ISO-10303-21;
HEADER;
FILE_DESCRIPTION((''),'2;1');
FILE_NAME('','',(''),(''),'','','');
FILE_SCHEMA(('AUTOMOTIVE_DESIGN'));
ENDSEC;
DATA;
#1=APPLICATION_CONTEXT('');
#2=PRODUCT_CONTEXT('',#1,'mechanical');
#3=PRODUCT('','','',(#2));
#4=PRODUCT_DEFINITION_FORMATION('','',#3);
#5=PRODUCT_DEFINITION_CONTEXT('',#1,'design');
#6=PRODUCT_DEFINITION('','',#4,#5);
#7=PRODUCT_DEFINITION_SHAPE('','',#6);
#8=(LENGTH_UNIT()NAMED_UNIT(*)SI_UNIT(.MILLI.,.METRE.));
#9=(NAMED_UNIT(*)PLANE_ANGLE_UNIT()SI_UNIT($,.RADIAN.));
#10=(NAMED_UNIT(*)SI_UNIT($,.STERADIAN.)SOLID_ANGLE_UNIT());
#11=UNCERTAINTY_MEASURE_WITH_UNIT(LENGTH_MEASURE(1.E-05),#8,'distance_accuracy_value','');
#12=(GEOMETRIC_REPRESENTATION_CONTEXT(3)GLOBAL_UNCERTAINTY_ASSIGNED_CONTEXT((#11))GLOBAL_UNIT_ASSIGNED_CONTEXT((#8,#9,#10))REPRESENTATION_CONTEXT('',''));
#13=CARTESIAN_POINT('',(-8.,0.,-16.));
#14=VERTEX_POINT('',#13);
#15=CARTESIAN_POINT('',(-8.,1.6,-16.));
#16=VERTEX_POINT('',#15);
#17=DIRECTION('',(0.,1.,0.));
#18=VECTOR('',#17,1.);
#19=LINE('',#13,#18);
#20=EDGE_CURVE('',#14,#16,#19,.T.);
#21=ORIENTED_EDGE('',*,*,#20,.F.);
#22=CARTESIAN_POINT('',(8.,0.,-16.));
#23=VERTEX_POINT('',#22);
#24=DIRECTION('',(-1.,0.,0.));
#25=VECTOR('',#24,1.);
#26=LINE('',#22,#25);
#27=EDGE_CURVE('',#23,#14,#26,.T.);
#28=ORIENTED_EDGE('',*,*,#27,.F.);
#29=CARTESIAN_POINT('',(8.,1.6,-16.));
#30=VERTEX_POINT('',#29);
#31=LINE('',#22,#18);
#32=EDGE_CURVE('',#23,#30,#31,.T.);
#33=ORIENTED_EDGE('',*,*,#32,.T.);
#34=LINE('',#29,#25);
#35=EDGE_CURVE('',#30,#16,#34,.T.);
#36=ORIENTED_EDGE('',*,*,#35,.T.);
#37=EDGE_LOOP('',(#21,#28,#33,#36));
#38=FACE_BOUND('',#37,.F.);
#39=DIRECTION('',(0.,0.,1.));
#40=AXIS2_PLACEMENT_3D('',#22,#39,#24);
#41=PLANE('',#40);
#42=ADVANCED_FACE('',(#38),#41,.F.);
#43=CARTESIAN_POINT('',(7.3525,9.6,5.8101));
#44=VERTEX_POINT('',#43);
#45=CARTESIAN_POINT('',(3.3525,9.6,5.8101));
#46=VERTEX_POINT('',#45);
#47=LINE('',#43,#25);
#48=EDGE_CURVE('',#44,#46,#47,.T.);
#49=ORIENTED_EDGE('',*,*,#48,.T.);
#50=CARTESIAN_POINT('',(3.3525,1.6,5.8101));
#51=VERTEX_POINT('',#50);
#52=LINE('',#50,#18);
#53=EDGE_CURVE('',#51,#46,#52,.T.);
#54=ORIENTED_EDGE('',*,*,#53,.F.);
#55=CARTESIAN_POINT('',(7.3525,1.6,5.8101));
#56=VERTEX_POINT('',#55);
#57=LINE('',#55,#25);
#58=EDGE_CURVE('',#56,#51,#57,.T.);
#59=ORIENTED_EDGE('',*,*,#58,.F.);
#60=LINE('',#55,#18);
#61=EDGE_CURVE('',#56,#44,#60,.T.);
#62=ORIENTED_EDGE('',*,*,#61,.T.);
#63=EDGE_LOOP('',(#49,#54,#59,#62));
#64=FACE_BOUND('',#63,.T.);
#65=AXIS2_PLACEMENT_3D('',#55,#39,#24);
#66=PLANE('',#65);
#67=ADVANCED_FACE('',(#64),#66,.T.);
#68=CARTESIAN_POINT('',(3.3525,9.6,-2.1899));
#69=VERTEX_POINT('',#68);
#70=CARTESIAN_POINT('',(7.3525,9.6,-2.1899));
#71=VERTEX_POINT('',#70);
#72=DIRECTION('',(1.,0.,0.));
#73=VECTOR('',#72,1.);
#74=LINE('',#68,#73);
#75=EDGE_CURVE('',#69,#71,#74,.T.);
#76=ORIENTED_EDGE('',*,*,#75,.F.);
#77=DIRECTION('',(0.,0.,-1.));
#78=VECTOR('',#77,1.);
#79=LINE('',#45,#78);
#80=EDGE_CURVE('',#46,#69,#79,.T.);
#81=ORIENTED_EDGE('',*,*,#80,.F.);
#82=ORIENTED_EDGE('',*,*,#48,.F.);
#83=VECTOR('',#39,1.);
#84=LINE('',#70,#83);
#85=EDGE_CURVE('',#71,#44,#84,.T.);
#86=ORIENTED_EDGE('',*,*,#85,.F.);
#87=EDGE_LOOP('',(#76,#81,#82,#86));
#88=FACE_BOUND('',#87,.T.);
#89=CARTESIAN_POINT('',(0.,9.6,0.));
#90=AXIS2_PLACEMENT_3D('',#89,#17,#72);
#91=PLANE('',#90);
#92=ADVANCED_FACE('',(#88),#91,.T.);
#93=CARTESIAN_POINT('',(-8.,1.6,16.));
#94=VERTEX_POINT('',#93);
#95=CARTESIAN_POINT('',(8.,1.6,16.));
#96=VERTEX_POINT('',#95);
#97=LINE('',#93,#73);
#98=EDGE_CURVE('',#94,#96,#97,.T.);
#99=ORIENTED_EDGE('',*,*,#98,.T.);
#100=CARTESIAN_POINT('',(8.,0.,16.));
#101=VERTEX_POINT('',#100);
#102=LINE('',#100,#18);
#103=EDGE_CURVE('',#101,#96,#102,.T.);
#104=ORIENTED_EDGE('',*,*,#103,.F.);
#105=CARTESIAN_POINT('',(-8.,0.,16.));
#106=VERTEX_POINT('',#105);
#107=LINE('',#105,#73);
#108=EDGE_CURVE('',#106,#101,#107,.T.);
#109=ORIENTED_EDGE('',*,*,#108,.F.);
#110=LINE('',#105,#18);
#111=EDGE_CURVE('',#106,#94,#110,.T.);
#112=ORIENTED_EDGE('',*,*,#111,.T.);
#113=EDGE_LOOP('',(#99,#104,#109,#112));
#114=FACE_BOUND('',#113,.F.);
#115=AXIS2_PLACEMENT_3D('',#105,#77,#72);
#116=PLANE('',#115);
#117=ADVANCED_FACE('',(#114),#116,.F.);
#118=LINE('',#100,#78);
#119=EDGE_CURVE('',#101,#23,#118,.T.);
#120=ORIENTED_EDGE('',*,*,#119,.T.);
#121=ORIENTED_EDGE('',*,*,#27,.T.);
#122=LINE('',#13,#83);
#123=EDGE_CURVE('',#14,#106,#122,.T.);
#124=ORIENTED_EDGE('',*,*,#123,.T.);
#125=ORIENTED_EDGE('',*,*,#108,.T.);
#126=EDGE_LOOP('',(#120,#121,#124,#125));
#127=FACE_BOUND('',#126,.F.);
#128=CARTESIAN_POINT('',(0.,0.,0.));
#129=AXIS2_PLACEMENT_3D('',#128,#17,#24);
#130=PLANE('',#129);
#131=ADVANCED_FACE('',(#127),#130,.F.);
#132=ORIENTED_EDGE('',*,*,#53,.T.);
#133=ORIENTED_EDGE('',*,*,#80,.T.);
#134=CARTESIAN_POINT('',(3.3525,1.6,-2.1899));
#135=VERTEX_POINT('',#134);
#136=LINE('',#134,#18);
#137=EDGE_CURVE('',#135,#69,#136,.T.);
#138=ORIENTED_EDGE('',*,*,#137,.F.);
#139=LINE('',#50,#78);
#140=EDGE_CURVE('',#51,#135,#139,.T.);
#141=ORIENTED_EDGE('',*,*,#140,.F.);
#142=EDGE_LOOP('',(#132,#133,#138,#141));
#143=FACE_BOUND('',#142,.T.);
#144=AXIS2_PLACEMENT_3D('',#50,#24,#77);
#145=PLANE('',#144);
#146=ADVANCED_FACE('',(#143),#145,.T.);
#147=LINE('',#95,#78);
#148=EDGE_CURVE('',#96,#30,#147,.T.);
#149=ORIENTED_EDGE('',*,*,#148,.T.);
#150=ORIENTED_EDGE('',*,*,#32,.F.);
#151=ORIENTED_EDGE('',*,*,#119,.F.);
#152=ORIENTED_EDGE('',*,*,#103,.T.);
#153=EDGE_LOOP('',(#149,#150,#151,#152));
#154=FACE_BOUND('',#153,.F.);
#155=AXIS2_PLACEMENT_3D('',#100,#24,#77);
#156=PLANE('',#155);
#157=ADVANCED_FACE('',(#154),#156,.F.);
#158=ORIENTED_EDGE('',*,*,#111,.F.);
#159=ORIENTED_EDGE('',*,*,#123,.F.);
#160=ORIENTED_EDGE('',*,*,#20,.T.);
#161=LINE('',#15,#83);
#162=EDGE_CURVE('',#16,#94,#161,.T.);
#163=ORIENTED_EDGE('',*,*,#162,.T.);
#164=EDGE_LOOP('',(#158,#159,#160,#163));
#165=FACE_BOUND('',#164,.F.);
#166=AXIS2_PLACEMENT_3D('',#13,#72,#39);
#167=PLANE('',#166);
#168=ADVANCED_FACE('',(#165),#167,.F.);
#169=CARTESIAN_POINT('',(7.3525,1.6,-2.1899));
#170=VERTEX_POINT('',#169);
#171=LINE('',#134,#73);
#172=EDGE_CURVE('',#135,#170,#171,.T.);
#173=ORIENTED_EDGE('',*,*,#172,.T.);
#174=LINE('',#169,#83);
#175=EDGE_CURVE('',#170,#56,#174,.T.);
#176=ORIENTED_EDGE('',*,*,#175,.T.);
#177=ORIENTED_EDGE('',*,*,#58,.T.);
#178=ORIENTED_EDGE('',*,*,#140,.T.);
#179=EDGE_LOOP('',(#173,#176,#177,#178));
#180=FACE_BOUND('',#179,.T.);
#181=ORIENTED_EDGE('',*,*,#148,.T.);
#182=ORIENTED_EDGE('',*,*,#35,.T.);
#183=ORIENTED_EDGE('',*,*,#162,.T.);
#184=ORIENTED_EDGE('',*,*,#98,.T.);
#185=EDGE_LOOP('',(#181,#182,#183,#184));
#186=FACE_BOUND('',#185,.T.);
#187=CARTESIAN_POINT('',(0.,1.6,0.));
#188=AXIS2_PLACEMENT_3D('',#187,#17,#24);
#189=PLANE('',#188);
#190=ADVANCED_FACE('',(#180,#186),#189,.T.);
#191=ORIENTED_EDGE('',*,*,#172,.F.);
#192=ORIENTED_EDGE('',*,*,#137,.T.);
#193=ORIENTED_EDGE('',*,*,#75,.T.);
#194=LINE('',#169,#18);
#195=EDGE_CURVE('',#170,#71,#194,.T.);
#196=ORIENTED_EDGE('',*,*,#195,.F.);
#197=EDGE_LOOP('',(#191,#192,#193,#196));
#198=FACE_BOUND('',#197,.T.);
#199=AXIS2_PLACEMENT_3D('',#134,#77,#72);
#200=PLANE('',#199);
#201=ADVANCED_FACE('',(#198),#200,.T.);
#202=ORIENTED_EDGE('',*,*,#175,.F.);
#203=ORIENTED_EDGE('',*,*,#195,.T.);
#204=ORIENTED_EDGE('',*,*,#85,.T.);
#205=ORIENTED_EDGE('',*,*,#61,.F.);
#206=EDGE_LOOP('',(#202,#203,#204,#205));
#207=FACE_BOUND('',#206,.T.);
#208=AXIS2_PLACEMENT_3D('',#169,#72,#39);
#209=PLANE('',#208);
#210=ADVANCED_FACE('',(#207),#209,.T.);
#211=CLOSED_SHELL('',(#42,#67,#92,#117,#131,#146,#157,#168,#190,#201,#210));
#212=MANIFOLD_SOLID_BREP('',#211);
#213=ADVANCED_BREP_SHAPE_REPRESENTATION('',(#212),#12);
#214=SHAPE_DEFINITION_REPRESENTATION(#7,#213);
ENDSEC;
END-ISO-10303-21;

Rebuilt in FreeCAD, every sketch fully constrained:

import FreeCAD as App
import Part
import Sketcher
from FreeCAD import Vector
Q = App.Units.Quantity


def add_polygon(sketch, points):
    """Adds a closed chain of lines whose ends are joined by coincident constraints."""
    first, n = sketch.GeometryCount, len(points)
    for a, b in zip(points, points[1:] + points[:1]):
        sketch.addGeometry(Part.LineSegment(App.Vector(*a, 0), App.Vector(*b, 0)), False)
    for i in range(n):
        sketch.addConstraint(Sketcher.Constraint("Coincident", first + i, 2, first + (i + 1) % n, 1))

doc = App.newDocument("Part")
body = doc.addObject("PartDesign::Body", "Body")

sketch1 = doc.addObject("Sketcher::SketchObject", "Sketch")
body.addObject(sketch1)
sketch1.AttachmentSupport = (doc.XZ_Plane, [""])
sketch1.MapMode = "FlatFace"
add_polygon(sketch1, [(8, 16), (8, -16), (-8, -16), (-8, 16)])
sketch1.addConstraint(Sketcher.Constraint("Vertical", 0))
sketch1.addConstraint(Sketcher.Constraint("Horizontal", 1))
sketch1.addConstraint(Sketcher.Constraint("Vertical", 2))
sketch1.addConstraint(Sketcher.Constraint("Horizontal", 3))
sketch1.addConstraint(Sketcher.Constraint("Symmetric", 0, 2, 2, 2, -1, 1))
sketch1.addConstraint(Sketcher.Constraint("DistanceX", 1, 2, 1, 1, Q("16 mm")))
sketch1.addConstraint(Sketcher.Constraint("DistanceY", 0, 2, 0, 1, Q("32 mm")))
pad1 = doc.addObject("PartDesign::Pad", "Pad")
body.addObject(pad1)
pad1.Profile = sketch1
pad1.Length = 1.6
pad1.Reversed = True

sketch2 = doc.addObject("Sketcher::SketchObject", "Sketch001")
body.addObject(sketch2)
sketch2.AttachmentSupport = (doc.XZ_Plane, [""])
sketch2.MapMode = "FlatFace"
sketch2.AttachmentOffset = App.Placement(Vector(0, 0, -1.6), App.Rotation())
add_polygon(sketch2, [(7.4, -2.2), (3.4, -2.2), (3.4, 5.8), (7.4, 5.8)])
sketch2.addConstraint(Sketcher.Constraint("Horizontal", 0))
sketch2.addConstraint(Sketcher.Constraint("Vertical", 1))
sketch2.addConstraint(Sketcher.Constraint("Horizontal", 2))
sketch2.addConstraint(Sketcher.Constraint("Vertical", 3))
sketch2.addConstraint(Sketcher.Constraint("DistanceX", 0, 2, 0, 1, Q("4 mm")))
sketch2.addConstraint(Sketcher.Constraint("DistanceY", 1, 1, 1, 2, Q("8 mm")))
sketch2.addConstraint(Sketcher.Constraint("DistanceY", 0, 2, -1, 1, Q("2.19 mm")))
sketch2.addConstraint(Sketcher.Constraint("DistanceX", -1, 1, 0, 2, Q("3.3525 mm")))
pad2 = doc.addObject("PartDesign::Pad", "Pad001")
body.addObject(pad2)
pad2.Profile = sketch2
pad2.Length = 8
pad2.Reversed = True

doc.recompute()
